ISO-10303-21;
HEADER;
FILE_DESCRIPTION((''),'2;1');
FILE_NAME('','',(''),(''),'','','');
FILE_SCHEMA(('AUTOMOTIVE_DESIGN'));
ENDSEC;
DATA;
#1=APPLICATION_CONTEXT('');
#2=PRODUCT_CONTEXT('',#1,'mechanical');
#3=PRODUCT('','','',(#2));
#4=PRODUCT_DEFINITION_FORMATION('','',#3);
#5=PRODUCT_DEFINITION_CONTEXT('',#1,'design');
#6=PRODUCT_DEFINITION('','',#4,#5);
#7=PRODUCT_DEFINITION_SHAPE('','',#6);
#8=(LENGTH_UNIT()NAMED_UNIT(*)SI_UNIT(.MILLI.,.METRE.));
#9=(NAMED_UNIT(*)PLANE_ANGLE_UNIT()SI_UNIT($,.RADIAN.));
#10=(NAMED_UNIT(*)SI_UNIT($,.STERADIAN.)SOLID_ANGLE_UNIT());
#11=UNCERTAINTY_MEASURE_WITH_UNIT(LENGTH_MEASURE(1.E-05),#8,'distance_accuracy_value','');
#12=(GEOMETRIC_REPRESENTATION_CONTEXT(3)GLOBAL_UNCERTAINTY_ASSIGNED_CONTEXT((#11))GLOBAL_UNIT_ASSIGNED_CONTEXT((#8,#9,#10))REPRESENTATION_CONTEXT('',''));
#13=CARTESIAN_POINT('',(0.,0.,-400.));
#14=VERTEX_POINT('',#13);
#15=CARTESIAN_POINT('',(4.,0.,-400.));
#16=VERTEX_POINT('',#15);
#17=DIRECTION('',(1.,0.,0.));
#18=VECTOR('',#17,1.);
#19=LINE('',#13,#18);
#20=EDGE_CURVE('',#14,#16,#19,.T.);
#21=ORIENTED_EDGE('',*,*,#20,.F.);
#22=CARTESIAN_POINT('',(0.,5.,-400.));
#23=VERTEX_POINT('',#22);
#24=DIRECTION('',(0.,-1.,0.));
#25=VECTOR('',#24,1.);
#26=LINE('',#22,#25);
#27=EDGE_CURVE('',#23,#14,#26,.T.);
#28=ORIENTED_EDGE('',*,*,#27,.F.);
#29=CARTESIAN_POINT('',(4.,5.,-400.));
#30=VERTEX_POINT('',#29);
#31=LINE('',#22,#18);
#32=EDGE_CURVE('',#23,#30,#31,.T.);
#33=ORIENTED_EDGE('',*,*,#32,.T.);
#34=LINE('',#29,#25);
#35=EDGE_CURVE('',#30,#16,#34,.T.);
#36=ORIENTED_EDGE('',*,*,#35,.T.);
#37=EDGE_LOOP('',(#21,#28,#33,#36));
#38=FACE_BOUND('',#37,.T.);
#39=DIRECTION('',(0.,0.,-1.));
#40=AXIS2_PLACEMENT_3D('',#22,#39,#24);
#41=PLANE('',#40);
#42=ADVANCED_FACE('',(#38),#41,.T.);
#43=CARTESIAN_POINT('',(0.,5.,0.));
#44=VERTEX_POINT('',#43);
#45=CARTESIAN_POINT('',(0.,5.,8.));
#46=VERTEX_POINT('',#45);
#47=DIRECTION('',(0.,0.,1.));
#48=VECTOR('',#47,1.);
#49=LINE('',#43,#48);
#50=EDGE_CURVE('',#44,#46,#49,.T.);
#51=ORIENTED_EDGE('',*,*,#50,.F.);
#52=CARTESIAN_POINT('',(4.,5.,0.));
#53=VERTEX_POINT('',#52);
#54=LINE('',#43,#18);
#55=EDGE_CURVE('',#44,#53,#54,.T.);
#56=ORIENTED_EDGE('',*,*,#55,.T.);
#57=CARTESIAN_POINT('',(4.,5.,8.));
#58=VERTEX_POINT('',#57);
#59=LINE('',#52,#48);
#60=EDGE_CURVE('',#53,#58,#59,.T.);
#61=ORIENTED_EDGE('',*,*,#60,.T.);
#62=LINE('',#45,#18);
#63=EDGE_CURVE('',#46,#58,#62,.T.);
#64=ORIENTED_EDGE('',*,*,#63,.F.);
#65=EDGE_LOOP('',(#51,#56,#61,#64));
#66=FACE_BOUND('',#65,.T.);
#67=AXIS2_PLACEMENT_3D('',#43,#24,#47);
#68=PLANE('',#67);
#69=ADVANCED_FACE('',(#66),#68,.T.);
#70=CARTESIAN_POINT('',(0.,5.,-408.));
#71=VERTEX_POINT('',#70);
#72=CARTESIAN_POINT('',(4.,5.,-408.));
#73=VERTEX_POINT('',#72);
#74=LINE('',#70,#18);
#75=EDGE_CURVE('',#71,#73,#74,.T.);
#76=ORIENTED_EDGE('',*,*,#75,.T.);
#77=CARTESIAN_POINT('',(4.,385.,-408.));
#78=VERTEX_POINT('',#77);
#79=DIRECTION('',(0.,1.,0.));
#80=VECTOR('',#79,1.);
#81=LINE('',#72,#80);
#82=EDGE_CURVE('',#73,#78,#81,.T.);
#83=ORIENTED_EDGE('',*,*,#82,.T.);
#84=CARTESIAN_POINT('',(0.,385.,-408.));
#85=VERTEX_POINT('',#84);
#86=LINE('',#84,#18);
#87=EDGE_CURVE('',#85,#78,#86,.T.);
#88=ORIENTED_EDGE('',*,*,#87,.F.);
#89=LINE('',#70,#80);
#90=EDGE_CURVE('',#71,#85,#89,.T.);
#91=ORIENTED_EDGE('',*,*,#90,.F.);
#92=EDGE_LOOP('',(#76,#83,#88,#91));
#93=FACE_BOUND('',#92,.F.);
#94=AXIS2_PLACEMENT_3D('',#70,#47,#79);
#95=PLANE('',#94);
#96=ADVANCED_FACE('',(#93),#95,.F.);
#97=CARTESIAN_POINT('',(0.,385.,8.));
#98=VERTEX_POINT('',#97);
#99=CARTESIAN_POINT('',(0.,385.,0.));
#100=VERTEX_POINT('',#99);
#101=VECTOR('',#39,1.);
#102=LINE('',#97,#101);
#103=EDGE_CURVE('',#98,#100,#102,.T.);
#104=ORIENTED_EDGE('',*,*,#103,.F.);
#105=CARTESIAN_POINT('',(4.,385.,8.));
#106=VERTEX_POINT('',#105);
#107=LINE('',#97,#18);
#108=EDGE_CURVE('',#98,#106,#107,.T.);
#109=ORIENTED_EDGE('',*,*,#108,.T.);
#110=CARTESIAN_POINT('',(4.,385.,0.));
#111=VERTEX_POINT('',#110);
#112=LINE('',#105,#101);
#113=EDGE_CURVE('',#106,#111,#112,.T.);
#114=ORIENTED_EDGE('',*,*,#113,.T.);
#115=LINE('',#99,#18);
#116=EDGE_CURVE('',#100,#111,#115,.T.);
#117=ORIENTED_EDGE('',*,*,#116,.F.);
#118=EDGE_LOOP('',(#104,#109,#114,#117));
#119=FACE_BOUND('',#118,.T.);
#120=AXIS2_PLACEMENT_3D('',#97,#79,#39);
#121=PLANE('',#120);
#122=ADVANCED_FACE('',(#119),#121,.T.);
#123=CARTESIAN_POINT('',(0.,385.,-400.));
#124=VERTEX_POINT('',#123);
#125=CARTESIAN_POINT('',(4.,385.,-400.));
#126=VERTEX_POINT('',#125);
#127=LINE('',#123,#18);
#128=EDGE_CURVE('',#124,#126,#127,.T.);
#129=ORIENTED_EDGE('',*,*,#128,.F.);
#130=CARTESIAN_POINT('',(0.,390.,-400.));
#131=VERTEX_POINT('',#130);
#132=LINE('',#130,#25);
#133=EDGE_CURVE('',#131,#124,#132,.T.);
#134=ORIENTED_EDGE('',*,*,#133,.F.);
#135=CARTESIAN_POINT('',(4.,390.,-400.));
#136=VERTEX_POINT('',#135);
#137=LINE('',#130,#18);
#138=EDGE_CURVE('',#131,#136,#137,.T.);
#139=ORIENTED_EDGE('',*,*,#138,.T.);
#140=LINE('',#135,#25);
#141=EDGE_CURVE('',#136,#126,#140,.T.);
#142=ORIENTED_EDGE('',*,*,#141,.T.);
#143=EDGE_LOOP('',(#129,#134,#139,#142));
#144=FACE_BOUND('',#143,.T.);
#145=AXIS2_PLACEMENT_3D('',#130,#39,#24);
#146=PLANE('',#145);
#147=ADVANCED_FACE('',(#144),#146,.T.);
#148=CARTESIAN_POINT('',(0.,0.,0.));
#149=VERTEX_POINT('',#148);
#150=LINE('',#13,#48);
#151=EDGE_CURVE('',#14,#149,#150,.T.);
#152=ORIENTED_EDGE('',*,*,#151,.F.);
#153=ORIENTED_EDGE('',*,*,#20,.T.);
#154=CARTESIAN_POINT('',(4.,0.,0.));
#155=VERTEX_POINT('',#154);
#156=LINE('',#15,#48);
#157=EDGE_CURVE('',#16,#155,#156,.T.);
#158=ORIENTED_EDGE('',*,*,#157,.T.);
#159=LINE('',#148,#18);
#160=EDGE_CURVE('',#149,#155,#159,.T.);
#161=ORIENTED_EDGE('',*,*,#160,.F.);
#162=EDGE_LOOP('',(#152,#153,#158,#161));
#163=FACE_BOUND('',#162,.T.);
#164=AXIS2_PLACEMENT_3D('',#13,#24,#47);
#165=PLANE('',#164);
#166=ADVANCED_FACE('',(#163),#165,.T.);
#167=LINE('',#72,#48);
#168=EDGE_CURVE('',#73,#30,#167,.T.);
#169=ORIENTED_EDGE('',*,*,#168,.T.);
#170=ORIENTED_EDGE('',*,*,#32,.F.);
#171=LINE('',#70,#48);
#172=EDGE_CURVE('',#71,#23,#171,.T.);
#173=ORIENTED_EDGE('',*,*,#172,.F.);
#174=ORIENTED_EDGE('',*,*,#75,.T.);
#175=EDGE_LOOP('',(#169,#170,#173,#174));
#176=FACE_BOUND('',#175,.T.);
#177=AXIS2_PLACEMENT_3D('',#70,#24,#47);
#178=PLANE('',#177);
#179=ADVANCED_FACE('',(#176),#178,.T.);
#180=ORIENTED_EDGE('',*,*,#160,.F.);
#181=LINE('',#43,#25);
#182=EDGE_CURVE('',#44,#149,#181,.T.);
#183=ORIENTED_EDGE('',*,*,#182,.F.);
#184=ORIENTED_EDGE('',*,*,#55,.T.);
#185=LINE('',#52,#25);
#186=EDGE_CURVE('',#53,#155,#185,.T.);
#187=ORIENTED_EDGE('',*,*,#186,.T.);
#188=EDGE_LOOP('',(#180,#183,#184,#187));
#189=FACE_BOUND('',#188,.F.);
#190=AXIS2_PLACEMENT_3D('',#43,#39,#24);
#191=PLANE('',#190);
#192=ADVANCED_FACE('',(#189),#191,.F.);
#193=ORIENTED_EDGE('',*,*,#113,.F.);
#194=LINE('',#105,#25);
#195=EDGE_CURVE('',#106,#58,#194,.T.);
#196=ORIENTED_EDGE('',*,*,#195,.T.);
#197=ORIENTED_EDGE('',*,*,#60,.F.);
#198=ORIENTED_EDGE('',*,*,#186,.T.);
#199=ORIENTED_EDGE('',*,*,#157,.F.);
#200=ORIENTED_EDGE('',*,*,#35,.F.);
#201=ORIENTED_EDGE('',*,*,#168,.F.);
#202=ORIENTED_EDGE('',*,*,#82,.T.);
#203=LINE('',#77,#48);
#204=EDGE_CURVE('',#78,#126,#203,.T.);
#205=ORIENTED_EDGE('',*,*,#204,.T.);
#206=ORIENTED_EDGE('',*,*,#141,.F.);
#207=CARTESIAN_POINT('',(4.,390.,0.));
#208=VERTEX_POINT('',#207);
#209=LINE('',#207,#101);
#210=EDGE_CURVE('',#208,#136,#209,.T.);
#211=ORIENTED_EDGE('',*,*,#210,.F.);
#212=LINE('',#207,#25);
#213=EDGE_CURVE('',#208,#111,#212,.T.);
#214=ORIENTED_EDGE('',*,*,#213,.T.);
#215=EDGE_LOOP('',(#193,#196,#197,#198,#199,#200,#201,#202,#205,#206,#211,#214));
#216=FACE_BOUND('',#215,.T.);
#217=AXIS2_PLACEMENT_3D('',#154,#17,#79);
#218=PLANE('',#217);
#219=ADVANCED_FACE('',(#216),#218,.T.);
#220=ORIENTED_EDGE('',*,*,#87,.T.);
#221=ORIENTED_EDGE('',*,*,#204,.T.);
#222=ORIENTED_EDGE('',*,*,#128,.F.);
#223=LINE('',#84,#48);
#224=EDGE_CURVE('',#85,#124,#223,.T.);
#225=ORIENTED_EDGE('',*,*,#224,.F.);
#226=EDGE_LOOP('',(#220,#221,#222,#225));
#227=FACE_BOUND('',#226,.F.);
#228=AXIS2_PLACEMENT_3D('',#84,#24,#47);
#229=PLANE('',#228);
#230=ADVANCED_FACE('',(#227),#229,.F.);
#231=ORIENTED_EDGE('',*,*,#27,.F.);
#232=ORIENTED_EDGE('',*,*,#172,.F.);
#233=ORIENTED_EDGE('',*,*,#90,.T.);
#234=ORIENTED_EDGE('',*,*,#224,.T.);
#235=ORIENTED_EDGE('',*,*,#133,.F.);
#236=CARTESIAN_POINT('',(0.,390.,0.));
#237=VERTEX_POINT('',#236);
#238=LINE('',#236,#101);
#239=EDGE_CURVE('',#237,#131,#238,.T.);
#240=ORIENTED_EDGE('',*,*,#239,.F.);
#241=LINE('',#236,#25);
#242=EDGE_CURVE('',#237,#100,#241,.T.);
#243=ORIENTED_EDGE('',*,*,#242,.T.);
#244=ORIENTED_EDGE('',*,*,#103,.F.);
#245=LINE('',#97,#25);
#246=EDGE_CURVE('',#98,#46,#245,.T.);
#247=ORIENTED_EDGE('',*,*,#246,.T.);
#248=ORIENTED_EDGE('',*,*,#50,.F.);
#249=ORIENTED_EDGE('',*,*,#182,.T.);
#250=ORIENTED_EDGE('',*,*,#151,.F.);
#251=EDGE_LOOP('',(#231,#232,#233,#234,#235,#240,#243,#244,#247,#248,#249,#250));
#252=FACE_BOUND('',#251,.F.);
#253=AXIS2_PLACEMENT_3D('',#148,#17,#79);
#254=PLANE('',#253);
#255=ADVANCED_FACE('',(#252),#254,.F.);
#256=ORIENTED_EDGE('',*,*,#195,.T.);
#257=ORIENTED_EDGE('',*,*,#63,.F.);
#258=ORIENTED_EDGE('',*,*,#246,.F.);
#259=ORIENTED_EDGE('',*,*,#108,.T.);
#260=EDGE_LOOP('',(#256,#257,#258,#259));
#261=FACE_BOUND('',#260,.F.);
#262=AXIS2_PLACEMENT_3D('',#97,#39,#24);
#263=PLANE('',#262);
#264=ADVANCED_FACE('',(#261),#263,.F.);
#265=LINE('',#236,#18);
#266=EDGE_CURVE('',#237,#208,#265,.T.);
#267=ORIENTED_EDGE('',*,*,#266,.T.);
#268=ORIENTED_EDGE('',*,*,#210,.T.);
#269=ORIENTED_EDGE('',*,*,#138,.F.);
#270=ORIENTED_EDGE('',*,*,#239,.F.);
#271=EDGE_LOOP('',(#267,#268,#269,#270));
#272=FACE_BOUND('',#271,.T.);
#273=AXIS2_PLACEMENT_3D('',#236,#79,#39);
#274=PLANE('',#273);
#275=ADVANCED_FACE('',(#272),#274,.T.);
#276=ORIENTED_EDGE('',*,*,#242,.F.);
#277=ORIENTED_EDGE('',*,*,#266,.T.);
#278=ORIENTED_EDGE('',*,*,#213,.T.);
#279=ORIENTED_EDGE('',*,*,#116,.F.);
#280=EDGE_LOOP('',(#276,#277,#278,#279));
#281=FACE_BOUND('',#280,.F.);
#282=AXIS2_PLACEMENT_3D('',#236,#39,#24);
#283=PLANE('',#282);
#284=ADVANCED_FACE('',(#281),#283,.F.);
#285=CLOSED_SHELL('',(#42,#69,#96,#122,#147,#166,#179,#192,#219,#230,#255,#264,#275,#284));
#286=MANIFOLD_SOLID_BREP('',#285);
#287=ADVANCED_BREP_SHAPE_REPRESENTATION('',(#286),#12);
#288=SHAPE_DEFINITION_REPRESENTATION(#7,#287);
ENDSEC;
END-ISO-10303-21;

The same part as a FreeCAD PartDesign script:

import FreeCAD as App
import Part
import Sketcher
from FreeCAD import Vector
Q = App.Units.Quantity

doc = App.newDocument("Part")
body = doc.addObject("PartDesign::Body", "Body")

# Sketch on YZ plane
sketch1 = body.newObject("Sketcher::SketchObject", "Sketch")
sketch1.AttachmentSupport = (doc.getObject("YZ_Plane"), [""])
sketch1.MapMode = "FlatFace"
sketch1.addGeometry([
    Part.LineSegment(Vector(390, -400, 0), Vector(390, 0, 0)),  # 0
    Part.LineSegment(Vector(390, 0, 0), Vector(385, 0, 0)),  # 1
    Part.LineSegment(Vector(385, 0, 0), Vector(385, 8, 0)),  # 2
    Part.LineSegment(Vector(385, 8, 0), Vector(5, 8, 0)),  # 3
    Part.LineSegment(Vector(5, 8, 0), Vector(5, 0, 0)),  # 4
    Part.LineSegment(Vector(5, 0, 0), Vector(0, 0, 0)),  # 5
    Part.LineSegment(Vector(0, 0, 0), Vector(0, -400, 0)),  # 6
    Part.LineSegment(Vector(0, -400, 0), Vector(5, -400, 0)),  # 7
    Part.LineSegment(Vector(5, -400, 0), Vector(5, -408, 0)),  # 8
    Part.LineSegment(Vector(5, -408, 0), Vector(385, -408, 0)),  # 9
    Part.LineSegment(Vector(385, -408, 0), Vector(385, -400, 0)),  # 10
    Part.LineSegment(Vector(385, -400, 0), Vector(390, -400, 0)),  # 11
], False)
sketch1.addConstraint([
    Sketcher.Constraint("Coincident", 0, 2, 1, 1),
    Sketcher.Constraint("Coincident", 1, 2, 2, 1),
    Sketcher.Constraint("Coincident", 2, 2, 3, 1),
    Sketcher.Constraint("Coincident", 3, 2, 4, 1),
    Sketcher.Constraint("Coincident", 4, 2, 5, 1),
    Sketcher.Constraint("Coincident", 5, 2, 6, 1),
    Sketcher.Constraint("Coincident", 6, 2, 7, 1),
    Sketcher.Constraint("Coincident", 7, 2, 8, 1),
    Sketcher.Constraint("Coincident", 8, 2, 9, 1),
    Sketcher.Constraint("Coincident", 9, 2, 10, 1),
    Sketcher.Constraint("Coincident", 10, 2, 11, 1),
    Sketcher.Constraint("Coincident", 11, 2, 0, 1),
    Sketcher.Constraint("Vertical", 0),
    Sketcher.Constraint("Horizontal", 1),
    Sketcher.Constraint("Vertical", 2),
    Sketcher.Constraint("Horizontal", 3),
    Sketcher.Constraint("Vertical", 4),
    Sketcher.Constraint("Horizontal", 5),
    Sketcher.Constraint("Vertical", 6),
    Sketcher.Constraint("Horizontal", 7),
    Sketcher.Constraint("Vertical", 8),
    Sketcher.Constraint("Horizontal", 9),
    Sketcher.Constraint("Vertical", 10),
    Sketcher.Constraint("Horizontal", 11),
    Sketcher.Constraint("Coincident", 5, 2, -1, 1),
    Sketcher.Constraint("PointOnObject", 0, 2, -1),
    Sketcher.Constraint("Horizontal", 7, 2, 10, 2),
    Sketcher.Constraint("Vertical", 4, 2, 7, 2),
    Sketcher.Constraint("Vertical", 2, 2, 9, 2),
    Sketcher.Constraint("Equal", 1, 5),
    Sketcher.Constraint("Equal", 4, 8),
    Sketcher.Constraint("DistanceX", 1, 2, 1, 1, Q("5 mm")),
    Sketcher.Constraint("DistanceX", 3, 2, 3, 1, Q("380 mm")),
    Sketcher.Constraint("DistanceY", 0, 1, 0, 2, Q("400 mm")),
    Sketcher.Constraint("DistanceY", 2, 1, 2, 2, Q("8 mm")),
])
pad1 = body.newObject("PartDesign::Pad", "Pad")
pad1.Profile = sketch1
pad1.Length = 4

doc.recompute()
